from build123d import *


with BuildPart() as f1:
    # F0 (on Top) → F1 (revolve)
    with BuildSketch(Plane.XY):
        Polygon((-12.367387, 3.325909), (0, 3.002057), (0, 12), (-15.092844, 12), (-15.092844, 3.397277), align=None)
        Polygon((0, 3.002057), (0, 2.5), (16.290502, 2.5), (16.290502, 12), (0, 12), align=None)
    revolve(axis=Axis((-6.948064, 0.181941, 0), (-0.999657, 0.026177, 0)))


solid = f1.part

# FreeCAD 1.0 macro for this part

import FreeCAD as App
import Part
import Sketcher

V = App.Vector
Q = App.Units.Quantity

doc = App.newDocument("Part")
body = doc.addObject("PartDesign::Body", "Body")

# Sketch on XY plane
sketch1 = doc.addObject("Sketcher::SketchObject", "Sketch")
body.addObject(sketch1)
sketch1.AttachmentSupport = (doc.XY_Plane, [""])
sketch1.MapMode = "FlatFace"
sketch1.addGeometry([
    Part.LineSegment(V(-12.367387, 3.325909, 0), V(0, 3.002057, 0)),  # 0
    Part.LineSegment(V(0, 3.002057, 0), V(0, 2.5, 0)),  # 1
    Part.LineSegment(V(0, 2.5, 0), V(16.290502, 2.5, 0)),  # 2
    Part.LineSegment(V(16.290502, 2.5, 0), V(16.290502, 12, 0)),  # 3
    Part.LineSegment(V(16.290502, 12, 0), V(-15.092844, 12, 0)),  # 4
    Part.LineSegment(V(-15.092844, 12, 0), V(-15.092844, 3.397277, 0)),  # 5
    Part.LineSegment(V(-15.092844, 3.397277, 0), V(-12.367387, 3.325909, 0)),  # 6
], False)
sketch1.addGeometry(Part.LineSegment(V(16.213919, -0.424578, 0), V(-15.396518, 0.403172, 0)), True)  # axis
sketch1.addConstraint([
    Sketcher.Constraint("Coincident", 0, 2, 1, 1),
    Sketcher.Constraint("Coincident", 1, 2, 2, 1),
    Sketcher.Constraint("Coincident", 2, 2, 3, 1),
    Sketcher.Constraint("Coincident", 3, 2, 4, 1),
    Sketcher.Constraint("Coincident", 4, 2, 5, 1),
    Sketcher.Constraint("Coincident", 5, 2, 6, 1),
    Sketcher.Constraint("Coincident", 6, 2, 0, 1),
    Sketcher.Constraint("Vertical", 1),
    Sketcher.Constraint("Horizontal", 2),
    Sketcher.Constraint("Vertical", 3),
    Sketcher.Constraint("Horizontal", 4),
    Sketcher.Constraint("Vertical", 5),
    Sketcher.Constraint("PointOnObject", 0, 2, -2),
    Sketcher.Constraint("Parallel", 0, 6),
    Sketcher.Constraint("Parallel", 6, 7),
    Sketcher.Constraint("DistanceY", 3, 1, 3, 2, 9.5),
    Sketcher.Constraint("DistanceY", -1, 1, 3, 2, 12.0),
    Sketcher.Constraint("Angle", 0, Q("-1.500003 deg")),
    Sketcher.Constraint("DistanceX", 2, 1, 2, 2, 16.290502),
    Sketcher.Constraint("Distance", 6, 2.726391),
    Sketcher.Constraint("DistanceX", 4, 2, 4, 1, 31.383346),
    Sketcher.Constraint("DistanceY", 1, 2, 1, 1, 0.502057),
    Sketcher.Constraint("DistanceX", -1, 1, 7, 1, 16.213919),
    Sketcher.Constraint("DistanceY", 7, 1, -1, 1, 0.424578),
    Sketcher.Constraint("DistanceX", 7, 2, -1, 1, 15.396518),
])
revolution = doc.addObject("PartDesign::Revolution", "Revolution")
body.addObject(revolution)
revolution.Profile = sketch1
revolution.ReferenceAxis = (sketch1, ["Axis0"])
revolution.Angle = 360

doc.recompute()
